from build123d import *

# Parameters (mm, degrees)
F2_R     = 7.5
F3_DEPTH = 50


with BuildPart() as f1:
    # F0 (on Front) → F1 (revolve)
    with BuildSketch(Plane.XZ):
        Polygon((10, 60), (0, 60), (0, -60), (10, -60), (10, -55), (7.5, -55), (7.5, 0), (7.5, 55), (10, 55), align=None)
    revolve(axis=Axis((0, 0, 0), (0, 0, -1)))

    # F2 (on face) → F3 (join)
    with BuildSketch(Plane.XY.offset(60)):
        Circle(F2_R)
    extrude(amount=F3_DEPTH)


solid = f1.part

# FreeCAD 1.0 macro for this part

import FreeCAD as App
import Part
import Sketcher

doc = App.newDocument("Part")
params = doc.addObject("Spreadsheet::Sheet", "Params")
for row, (alias, value) in enumerate([
    ("sketch1_width", "10 mm"),
    ("sketch1_height", "120 mm"),
    ("sketch1_height2", "5 mm"),
    ("sketch1_width2", "2.5 mm"),
    ("revolution_angle", "360 deg"),
    ("sketch2_diameter", "15 mm"),
    ("pad1_length", "50 mm"),
], start=1):
    params.set(f"A{row}", alias)
    params.set(f"B{row}", "=" + value)
    params.setAlias(f"B{row}", alias)

body = doc.addObject("PartDesign::Body", "Body")

# Sketch on XZ plane
sketch1 = body.newObject("Sketcher::SketchObject", "Sketch")
sketch1.AttachmentSupport = (doc.getObject("XZ_Plane"), [""])
sketch1.MapMode = "FlatFace"
sketch1.addGeometry([
    Part.LineSegment(App.Vector(10, 60, 0), App.Vector(0, 60, 0)),  # 0
    Part.LineSegment(App.Vector(0, 60, 0), App.Vector(0, -60, 0)),  # 1
    Part.LineSegment(App.Vector(0, -60, 0), App.Vector(10, -60, 0)),  # 2
    Part.LineSegment(App.Vector(10, -60, 0), App.Vector(10, -55, 0)),  # 3
    Part.LineSegment(App.Vector(10, -55, 0), App.Vector(7.5, -55, 0)),  # 4
    Part.LineSegment(App.Vector(7.5, -55, 0), App.Vector(7.5, 55, 0)),  # 5
    Part.LineSegment(App.Vector(7.5, 55, 0), App.Vector(10, 55, 0)),  # 6
    Part.LineSegment(App.Vector(10, 55, 0), App.Vector(10, 60, 0)),  # 7
], False)
sketch1.addConstraint([
    Sketcher.Constraint("Coincident", 0, 2, 1, 1),
    Sketcher.Constraint("Coincident", 1, 2, 2, 1),
    Sketcher.Constraint("Coincident", 2, 2, 3, 1),
    Sketcher.Constraint("Coincident", 3, 2, 4, 1),
    Sketcher.Constraint("Coincident", 4, 2, 5, 1),
    Sketcher.Constraint("Coincident", 5, 2, 6, 1),
    Sketcher.Constraint("Coincident", 6, 2, 7, 1),
    Sketcher.Constraint("Coincident", 7, 2, 0, 1),
    Sketcher.Constraint("Horizontal", 0),
    Sketcher.Constraint("Vertical", 1),
    Sketcher.Constraint("Horizontal", 2),
    Sketcher.Constraint("Vertical", 3),
    Sketcher.Constraint("Horizontal", 4),
    Sketcher.Constraint("Vertical", 5),
    Sketcher.Constraint("Horizontal", 6),
    Sketcher.Constraint("Vertical", 7),
    Sketcher.Constraint("Symmetric", 0, 2, 1, 2, -1, 1),
    Sketcher.Constraint("Symmetric", 3, 2, 6, 2, -1),
    Sketcher.Constraint("DistanceX", 0, 2, 0, 1, 10.0),
    Sketcher.Constraint("DistanceY", 1, 2, 1, 1, 120.0),
    Sketcher.Constraint("DistanceY", 3, 1, 3, 2, 5.0),
    Sketcher.Constraint("DistanceX", 4, 2, 4, 1, 2.5),
])
sketch1.setExpression("Constraints[18]", "Params.sketch1_width")
sketch1.setExpression("Constraints[19]", "Params.sketch1_height")
sketch1.setExpression("Constraints[20]", "Params.sketch1_height2")
sketch1.setExpression("Constraints[21]", "Params.sketch1_width2")
revolution = body.newObject("PartDesign::Revolution", "Revolution")
revolution.Profile = sketch1
revolution.ReferenceAxis = (sketch1, ["V_Axis"])
revolution.setExpression("Angle", "Params.revolution_angle")

# Sketch on XY plane
sketch2 = body.newObject("Sketcher::SketchObject", "Sketch001")
sketch2.AttachmentSupport = (doc.getObject("XY_Plane"), [""])
sketch2.MapMode = "FlatFace"
sketch2.AttachmentOffset = App.Placement(App.Vector(0, 0, 60), App.Rotation())
sketch2.addGeometry(Part.Circle(App.Vector(0, 0, 0), App.Vector(0, 0, 1), 8), False)
sketch2.addConstraint([
    Sketcher.Constraint("Coincident", 0, 3, -1, 1),
    Sketcher.Constraint("Diameter", 0, 15.0),
])
sketch2.setExpression("Constraints[1]", "Params.sketch2_diameter")
pad1 = body.newObject("PartDesign::Pad", "Pad")
pad1.Profile = sketch2
pad1.setExpression("Length", "Params.pad1_length")

doc.recompute()
